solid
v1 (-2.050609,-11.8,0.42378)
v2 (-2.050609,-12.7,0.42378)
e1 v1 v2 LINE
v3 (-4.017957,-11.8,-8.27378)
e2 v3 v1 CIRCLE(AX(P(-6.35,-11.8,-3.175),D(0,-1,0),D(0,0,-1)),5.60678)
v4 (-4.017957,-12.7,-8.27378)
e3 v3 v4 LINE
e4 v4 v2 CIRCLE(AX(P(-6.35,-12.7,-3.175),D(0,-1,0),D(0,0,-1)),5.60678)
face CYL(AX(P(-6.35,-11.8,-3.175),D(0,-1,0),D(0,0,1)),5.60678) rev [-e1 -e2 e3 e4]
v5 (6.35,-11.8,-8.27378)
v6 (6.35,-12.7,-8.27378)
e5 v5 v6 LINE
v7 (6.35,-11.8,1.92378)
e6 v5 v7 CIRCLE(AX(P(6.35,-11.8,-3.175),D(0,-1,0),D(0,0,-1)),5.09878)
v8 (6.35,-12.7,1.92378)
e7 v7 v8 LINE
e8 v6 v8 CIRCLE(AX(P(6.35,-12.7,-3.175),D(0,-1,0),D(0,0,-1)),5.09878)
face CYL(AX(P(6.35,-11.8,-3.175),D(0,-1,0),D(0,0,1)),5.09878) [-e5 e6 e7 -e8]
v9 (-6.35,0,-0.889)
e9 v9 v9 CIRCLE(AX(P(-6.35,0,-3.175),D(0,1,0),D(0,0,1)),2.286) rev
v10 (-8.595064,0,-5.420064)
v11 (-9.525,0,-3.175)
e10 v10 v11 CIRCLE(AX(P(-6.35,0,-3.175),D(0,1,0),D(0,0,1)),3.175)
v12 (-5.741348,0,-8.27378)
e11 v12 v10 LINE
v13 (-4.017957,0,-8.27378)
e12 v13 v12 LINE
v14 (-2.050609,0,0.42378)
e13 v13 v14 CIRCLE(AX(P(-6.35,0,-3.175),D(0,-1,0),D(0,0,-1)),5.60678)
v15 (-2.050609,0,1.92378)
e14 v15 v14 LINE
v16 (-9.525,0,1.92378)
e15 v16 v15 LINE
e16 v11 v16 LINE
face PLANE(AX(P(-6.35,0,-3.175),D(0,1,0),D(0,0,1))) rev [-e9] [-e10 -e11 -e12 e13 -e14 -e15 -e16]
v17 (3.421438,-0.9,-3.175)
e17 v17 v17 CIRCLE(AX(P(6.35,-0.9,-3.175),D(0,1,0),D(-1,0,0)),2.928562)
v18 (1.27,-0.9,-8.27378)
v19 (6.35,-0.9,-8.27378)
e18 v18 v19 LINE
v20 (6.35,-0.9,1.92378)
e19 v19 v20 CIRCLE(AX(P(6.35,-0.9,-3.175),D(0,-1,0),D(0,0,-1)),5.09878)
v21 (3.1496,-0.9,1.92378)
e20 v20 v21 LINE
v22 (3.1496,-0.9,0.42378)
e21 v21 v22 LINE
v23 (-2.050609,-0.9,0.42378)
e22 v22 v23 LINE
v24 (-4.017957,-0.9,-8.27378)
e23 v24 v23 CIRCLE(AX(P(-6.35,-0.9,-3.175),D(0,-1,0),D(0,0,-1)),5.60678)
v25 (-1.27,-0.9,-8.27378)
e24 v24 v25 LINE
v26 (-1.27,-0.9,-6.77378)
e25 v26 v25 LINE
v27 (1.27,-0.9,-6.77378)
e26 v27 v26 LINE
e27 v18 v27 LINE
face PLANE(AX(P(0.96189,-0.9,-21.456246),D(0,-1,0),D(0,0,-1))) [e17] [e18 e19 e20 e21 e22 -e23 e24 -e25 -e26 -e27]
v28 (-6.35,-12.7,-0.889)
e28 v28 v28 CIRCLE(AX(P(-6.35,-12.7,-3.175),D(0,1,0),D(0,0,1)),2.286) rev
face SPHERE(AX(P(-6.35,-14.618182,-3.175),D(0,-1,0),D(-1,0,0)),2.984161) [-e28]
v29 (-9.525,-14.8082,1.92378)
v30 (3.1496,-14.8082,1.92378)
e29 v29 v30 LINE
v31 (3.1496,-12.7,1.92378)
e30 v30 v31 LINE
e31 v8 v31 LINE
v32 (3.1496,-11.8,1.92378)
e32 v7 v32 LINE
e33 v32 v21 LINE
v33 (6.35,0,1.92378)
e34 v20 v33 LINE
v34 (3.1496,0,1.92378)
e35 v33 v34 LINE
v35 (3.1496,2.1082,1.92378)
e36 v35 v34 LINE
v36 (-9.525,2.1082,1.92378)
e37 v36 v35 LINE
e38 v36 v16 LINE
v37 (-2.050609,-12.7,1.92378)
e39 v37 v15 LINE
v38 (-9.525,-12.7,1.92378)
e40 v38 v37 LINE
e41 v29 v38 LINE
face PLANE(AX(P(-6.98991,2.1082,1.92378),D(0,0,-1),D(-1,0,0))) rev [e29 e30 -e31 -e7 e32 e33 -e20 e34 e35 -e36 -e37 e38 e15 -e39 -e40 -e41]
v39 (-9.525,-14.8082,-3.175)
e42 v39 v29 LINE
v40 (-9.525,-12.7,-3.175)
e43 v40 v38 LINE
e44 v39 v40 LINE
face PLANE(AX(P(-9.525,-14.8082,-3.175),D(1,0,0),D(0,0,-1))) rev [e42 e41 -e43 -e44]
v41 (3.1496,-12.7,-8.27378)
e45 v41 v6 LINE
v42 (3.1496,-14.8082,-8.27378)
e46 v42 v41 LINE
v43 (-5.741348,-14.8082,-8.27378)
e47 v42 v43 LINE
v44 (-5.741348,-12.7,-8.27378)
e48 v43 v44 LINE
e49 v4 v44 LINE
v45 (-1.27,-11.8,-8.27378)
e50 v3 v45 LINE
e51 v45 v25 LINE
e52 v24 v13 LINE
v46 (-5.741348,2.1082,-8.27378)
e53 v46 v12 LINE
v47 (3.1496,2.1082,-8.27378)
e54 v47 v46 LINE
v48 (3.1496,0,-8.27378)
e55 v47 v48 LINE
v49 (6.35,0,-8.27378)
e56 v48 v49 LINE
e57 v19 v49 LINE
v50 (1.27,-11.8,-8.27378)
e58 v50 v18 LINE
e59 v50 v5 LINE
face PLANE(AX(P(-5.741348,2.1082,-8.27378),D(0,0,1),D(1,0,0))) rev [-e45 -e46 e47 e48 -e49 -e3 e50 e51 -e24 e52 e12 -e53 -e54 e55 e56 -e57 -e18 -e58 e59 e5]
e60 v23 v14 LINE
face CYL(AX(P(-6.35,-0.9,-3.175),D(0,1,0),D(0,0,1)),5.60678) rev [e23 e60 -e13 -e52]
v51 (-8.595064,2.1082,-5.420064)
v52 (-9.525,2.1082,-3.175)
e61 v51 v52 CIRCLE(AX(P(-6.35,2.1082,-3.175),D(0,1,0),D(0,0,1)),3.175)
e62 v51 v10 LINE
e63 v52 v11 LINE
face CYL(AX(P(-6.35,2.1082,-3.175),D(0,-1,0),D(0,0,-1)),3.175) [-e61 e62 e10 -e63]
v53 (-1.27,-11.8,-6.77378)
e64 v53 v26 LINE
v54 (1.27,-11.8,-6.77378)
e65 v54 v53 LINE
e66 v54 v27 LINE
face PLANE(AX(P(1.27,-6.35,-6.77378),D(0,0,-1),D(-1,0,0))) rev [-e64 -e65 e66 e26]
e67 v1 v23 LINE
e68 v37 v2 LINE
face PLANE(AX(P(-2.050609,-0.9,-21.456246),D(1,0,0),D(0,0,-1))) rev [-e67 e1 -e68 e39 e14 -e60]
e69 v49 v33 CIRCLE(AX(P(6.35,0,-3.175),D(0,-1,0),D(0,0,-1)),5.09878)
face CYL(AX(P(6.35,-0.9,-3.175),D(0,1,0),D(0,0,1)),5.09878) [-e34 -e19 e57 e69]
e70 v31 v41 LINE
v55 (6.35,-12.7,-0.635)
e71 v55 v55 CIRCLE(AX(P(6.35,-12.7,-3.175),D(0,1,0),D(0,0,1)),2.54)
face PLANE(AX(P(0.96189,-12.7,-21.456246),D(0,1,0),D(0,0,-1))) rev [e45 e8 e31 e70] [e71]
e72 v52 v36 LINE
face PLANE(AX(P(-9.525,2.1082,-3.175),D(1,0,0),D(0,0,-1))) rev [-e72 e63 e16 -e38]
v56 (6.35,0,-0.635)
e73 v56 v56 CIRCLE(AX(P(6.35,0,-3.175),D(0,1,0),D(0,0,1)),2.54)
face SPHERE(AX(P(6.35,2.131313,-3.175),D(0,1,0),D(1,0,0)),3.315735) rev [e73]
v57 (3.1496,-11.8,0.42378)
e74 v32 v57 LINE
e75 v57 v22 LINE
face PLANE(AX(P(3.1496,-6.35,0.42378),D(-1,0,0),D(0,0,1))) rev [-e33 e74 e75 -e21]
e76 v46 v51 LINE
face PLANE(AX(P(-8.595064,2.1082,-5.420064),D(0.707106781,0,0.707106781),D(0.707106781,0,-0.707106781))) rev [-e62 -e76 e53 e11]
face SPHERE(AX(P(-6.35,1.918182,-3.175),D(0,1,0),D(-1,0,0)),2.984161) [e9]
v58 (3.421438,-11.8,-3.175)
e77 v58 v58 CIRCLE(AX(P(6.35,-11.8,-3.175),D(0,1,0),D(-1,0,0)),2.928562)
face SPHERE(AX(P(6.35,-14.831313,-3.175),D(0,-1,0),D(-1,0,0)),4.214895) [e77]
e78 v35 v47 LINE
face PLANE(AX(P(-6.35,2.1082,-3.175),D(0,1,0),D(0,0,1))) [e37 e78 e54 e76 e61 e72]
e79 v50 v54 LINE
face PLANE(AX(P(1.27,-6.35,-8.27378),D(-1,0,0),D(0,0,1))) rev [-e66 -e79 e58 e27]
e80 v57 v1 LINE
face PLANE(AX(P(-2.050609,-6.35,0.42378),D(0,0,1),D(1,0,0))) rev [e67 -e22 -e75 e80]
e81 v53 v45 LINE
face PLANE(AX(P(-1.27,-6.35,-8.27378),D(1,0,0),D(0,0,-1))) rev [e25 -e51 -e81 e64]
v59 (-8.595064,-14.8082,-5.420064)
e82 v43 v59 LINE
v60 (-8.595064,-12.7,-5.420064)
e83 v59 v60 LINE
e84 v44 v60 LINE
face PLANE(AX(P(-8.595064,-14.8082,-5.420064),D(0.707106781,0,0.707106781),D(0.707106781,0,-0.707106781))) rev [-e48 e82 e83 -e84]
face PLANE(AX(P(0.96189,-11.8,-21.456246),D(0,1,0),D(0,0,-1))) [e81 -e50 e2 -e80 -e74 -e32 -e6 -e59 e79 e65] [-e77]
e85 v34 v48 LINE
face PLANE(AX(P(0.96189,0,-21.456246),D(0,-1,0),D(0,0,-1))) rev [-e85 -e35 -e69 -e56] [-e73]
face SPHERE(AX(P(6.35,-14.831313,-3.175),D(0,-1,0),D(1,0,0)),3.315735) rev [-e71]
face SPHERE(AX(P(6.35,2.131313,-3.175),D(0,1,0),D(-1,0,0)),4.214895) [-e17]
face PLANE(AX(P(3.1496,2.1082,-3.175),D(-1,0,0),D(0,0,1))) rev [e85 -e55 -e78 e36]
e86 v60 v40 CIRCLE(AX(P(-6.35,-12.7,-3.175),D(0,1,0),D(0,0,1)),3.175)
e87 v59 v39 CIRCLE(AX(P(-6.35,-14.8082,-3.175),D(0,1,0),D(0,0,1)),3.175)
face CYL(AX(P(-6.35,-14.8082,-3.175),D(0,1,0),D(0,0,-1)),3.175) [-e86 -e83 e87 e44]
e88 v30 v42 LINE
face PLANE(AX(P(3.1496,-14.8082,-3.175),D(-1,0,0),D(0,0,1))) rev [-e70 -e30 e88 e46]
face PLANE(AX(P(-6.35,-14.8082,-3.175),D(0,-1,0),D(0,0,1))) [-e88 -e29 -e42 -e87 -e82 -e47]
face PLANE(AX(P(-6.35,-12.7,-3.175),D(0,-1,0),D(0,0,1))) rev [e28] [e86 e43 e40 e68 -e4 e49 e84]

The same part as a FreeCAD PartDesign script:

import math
import FreeCAD as App
import Part
import Sketcher

V = App.Vector
Q = App.Units.Quantity

doc = App.newDocument("Part")
body = doc.addObject("PartDesign::Body", "Body")

sketch1 = doc.addObject("Sketcher::SketchObject", "Sketch")
body.addObject(sketch1)
sketch1.AttachmentSupport = (doc.XZ_Plane, [""])
sketch1.MapMode = "FlatFace"
sketch1.addGeometry([
    Part.LineSegment(V(3.1, -8.3, 0), V(-5.7, -8.3, 0)),
    Part.LineSegment(V(-5.7, -8.3, 0), V(-8.6, -5.4, 0)),
    Part.ArcOfCircle(Part.Circle(V(-6.4, -3.2, 0), V(0, 0, 1), 3.2), math.radians(180), math.radians(225)),
    Part.LineSegment(V(-9.5, -3.2, 0), V(-9.5, 1.9, 0)),
    Part.LineSegment(V(-9.5, 1.9, 0), V(3.1, 1.9, 0)),
    Part.LineSegment(V(3.1, 1.9, 0), V(3.1, -8.3, 0)),
], False)
sketch1.addConstraint([
    Sketcher.Constraint("Coincident", 0, 2, 1, 1),
    Sketcher.Constraint("Tangent", 1, 2, 2, 2),
    Sketcher.Constraint("Tangent", 2, 1, 3, 1),
    Sketcher.Constraint("Coincident", 3, 2, 4, 1),
    Sketcher.Constraint("Coincident", 4, 2, 5, 1),
    Sketcher.Constraint("Coincident", 5, 2, 0, 1),
    Sketcher.Constraint("Horizontal", 0),
    Sketcher.Constraint("Vertical", 3),
    Sketcher.Constraint("Horizontal", 4),
    Sketcher.Constraint("Vertical", 5),
    Sketcher.Constraint("Angle", 1, Q("135 deg")),
    Sketcher.Constraint("Radius", 2, Q("0.125 in")),
    Sketcher.Constraint("DistanceX", 4, 1, 4, 2, Q("0.499 in")),
    Sketcher.Constraint("DistanceX", 2, 3, -1, 1, Q("0.25 in")),
    Sketcher.Constraint("DistanceY", 2, 3, -1, 1, Q("0.125 in")),
    Sketcher.Constraint("DistanceX", 0, 2, 0, 1, 8.890948),
    Sketcher.Constraint("DistanceY", 3, 1, 3, 2, 5.09878),
])
pad1 = doc.addObject("PartDesign::Pad", "Pad")
body.addObject(pad1)
pad1.Profile = sketch1
pad1.Length = Q("0.083 in")
pad1.Reversed = True

sketch2 = doc.addObject("Sketcher::SketchObject", "Sketch001")
body.addObject(sketch2)
sketch2.AttachmentSupport = (doc.XZ_Plane, [""])
sketch2.MapMode = "FlatFace"
sketch2.addGeometry([
    Part.LineSegment(V(-2.1, 1.9, 0), V(-2.1, 0.4, 0)),
    Part.ArcOfCircle(Part.Circle(V(-6.3, -3.2, 0), V(0, 0, 1), 5.6), math.radians(-65), math.radians(40)),
    Part.LineSegment(V(-4, -8.3, 0), V(6.3, -8.3, 0)),
    Part.ArcOfCircle(Part.Circle(V(6.3, -3.2, 0), V(0, 0, 1), 5.1), math.radians(-90), math.radians(90)),
    Part.LineSegment(V(6.3, 1.9, 0), V(-2.1, 1.9, 0)),
], False)
sketch2.addConstraint([
    Sketcher.Constraint("Coincident", 0, 2, 1, 2),
    Sketcher.Constraint("Coincident", 1, 1, 2, 1),
    Sketcher.Constraint("Tangent", 2, 2, 3, 1),
    Sketcher.Constraint("Tangent", 3, 2, 4, 1),
    Sketcher.Constraint("Coincident", 4, 2, 0, 1),
    Sketcher.Constraint("Vertical", 0),
    Sketcher.Constraint("Horizontal", 2),
    Sketcher.Constraint("Horizontal", 4),
    Sketcher.Constraint("Symmetric", 1, 3, 3, 3, -2),
    Sketcher.Constraint("DistanceX", 1, 3, 3, 3, Q("0.5 in")),
    Sketcher.Constraint("DistanceY", 1, 3, -1, 1, Q("0.125 in")),
    Sketcher.Constraint("Radius", 1, 5.60678),
    Sketcher.Constraint("Radius", 3, 5.09878),
    Sketcher.Constraint("DistanceY", 0, 2, 0, 1, 1.5),
])
pad2 = doc.addObject("PartDesign::Pad", "Pad001")
body.addObject(pad2)
pad2.Profile = sketch2
pad2.Length = 0.9

sketch3 = doc.addObject("Sketcher::SketchObject", "Sketch002")
body.addObject(sketch3)
sketch3.AttachmentSupport = (doc.XY_Plane, [""])
sketch3.MapMode = "FlatFace"
sketch3.AttachmentOffset = App.Placement(V(0, 0, -0.125 * 25.4), App.Rotation())
sketch3.addGeometry([
    Part.LineSegment(V(-6.3, 0, 0), V(-6.3, -1.1, 0)),
    Part.ArcOfCircle(Part.Circle(V(-6.4, 1.9, 0), V(0, 0, 1), 3), math.radians(-90), math.radians(-40)),
    Part.LineSegment(V(-4.1, 0, 0), V(-6.3, 0, 0)),
], False)
sketch3.addGeometry(Part.LineSegment(V(-6.3, 1.9, 0), V(-6.3, -1.1, 0)), True)
sketch3.addConstraint([
    Sketcher.Constraint("Coincident", 0, 2, 1, 1),
    Sketcher.Constraint("Coincident", 1, 2, 2, 1),
    Sketcher.Constraint("Coincident", 2, 2, 0, 1),
    Sketcher.Constraint("Vertical", 0),
    Sketcher.Constraint("Horizontal", 2),
    Sketcher.Constraint("Vertical", 3),
    Sketcher.Constraint("Coincident", 3, 1, 1, 3),
    Sketcher.Constraint("Coincident", 3, 2, 0, 2),
    Sketcher.Constraint("PointOnObject", 1, 2, -1),
    Sketcher.Constraint("DistanceX", 2, 2, 2, 1, Q("0.09 in")),
    Sketcher.Constraint("DistanceX", 1, 3, -1, 1, Q("0.25 in")),
    Sketcher.Constraint("Radius", 1, 2.984161),
])
revolution = doc.addObject("PartDesign::Revolution", "Revolution")
body.addObject(revolution)
revolution.Profile = sketch3
revolution.ReferenceAxis = (sketch3, ["Axis0"])
revolution.Angle = 360

sketch4 = doc.addObject("Sketcher::SketchObject", "Sketch003")
body.addObject(sketch4)
sketch4.AttachmentSupport = (doc.XY_Plane, [""])
sketch4.MapMode = "FlatFace"
sketch4.AttachmentOffset = App.Placement(V(0, 0, -0.125 * 25.4), App.Rotation())
sketch4.addGeometry([
    Part.LineSegment(V(6.3, -0.9, 0), V(6.3, -2.1, 0)),
    Part.ArcOfCircle(Part.Circle(V(6.3, 2.1, 0), V(0, 0, 1), 4.2), math.radians(-90), math.radians(-46)),
    Part.LineSegment(V(9.3, -0.9, 0), V(6.3, -0.9, 0)),
], False)
sketch4.addGeometry(Part.LineSegment(V(6.3, 2.1, 0), V(6.3, -2.1, 0)), True)
sketch4.addConstraint([
    Sketcher.Constraint("Coincident", 0, 2, 1, 1),
    Sketcher.Constraint("Coincident", 1, 2, 2, 1),
    Sketcher.Constraint("Coincident", 2, 2, 0, 1),
    Sketcher.Constraint("Vertical", 0),
    Sketcher.Constraint("Horizontal", 2),
    Sketcher.Constraint("Vertical", 3),
    Sketcher.Constraint("Coincident", 3, 1, 1, 3),
    Sketcher.Constraint("Coincident", 3, 2, 0, 2),
    Sketcher.Constraint("DistanceX", -1, 1, 1, 3, Q("0.25 in")),
    Sketcher.Constraint("Radius", 1, 4.214895),
    Sketcher.Constraint("DistanceY", 0, 2, 0, 1, 1.183581),
    Sketcher.Constraint("DistanceY", 1, 2, -1, 1, 0.9),
])
revolution2 = doc.addObject("PartDesign::Revolution", "Revolution001")
body.addObject(revolution2)
revolution2.Profile = sketch4
revolution2.ReferenceAxis = (sketch4, ["Axis0"])
revolution2.Angle = 360

sketch5 = doc.addObject("Sketcher::SketchObject", "Sketch004")
body.addObject(sketch5)
sketch5.AttachmentSupport = (doc.XY_Plane, [""])
sketch5.MapMode = "FlatFace"
sketch5.AttachmentOffset = App.Placement(V(0, 0, -0.125 * 25.4), App.Rotation())
sketch5.addGeometry([
    Part.LineSegment(V(8.9, 0, 0), V(6.3, 0, 0)),
    Part.LineSegment(V(6.3, 0, 0), V(6.3, -1.2, 0)),
    Part.ArcOfCircle(Part.Circle(V(6.3, 2.1, 0), V(0, 0, 1), 3.3), math.radians(-90), math.radians(-40)),
], False)
sketch5.addGeometry(Part.LineSegment(V(6.3, 2.1, 0), V(6.3, -1.2, 0)), True)
sketch5.addConstraint([
    Sketcher.Constraint("Coincident", 0, 2, 1, 1),
    Sketcher.Constraint("Coincident", 1, 2, 2, 1),
    Sketcher.Constraint("Coincident", 2, 2, 0, 1),
    Sketcher.Constraint("Horizontal", 0),
    Sketcher.Constraint("Vertical", 1),
    Sketcher.Constraint("Vertical", 3),
    Sketcher.Constraint("Coincident", 3, 1, 2, 3),
    Sketcher.Constraint("Coincident", 3, 2, 1, 2),
    Sketcher.Constraint("PointOnObject", 0, 2, -1),
    Sketcher.Constraint("DistanceX", 0, 2, 0, 1, Q("0.1 in")),
    Sketcher.Constraint("DistanceX", -1, 1, 2, 3, Q("0.25 in")),
    Sketcher.Constraint("Radius", 2, 3.315735),
])
groove = doc.addObject("PartDesign::Groove", "Groove")
body.addObject(groove)
groove.Profile = sketch5
groove.ReferenceAxis = (sketch5, ["Axis0"])
groove.Angle = 360

sketch6 = doc.addObject("Sketcher::SketchObject", "Sketch005")
body.addObject(sketch6)
sketch6.AttachmentSupport = (doc.XZ_Plane, [""])
sketch6.MapMode = "FlatFace"
sketch6.addGeometry([
    Part.LineSegment(V(-2.1, 1.9, 0), V(-2.1, 0.4, 0)),
    Part.LineSegment(V(-2.1, 0.4, 0), V(3.1, 0.4, 0)),
    Part.LineSegment(V(3.1, 0.4, 0), V(3.1, 1.9, 0)),
    Part.LineSegment(V(3.1, 1.9, 0), V(-2.1, 1.9, 0)),
], False)
sketch6.addConstraint([
    Sketcher.Constraint("Coincident", 0, 2, 1, 1),
    Sketcher.Constraint("Coincident", 1, 2, 2, 1),
    Sketcher.Constraint("Coincident", 2, 2, 3, 1),
    Sketcher.Constraint("Coincident", 3, 2, 0, 1),
    Sketcher.Constraint("Vertical", 0),
    Sketcher.Constraint("Horizontal", 1),
    Sketcher.Constraint("Vertical", 2),
    Sketcher.Constraint("Horizontal", 3),
    Sketcher.Constraint("DistanceX", -1, 1, 1, 2, Q("0.124 in")),
    Sketcher.Constraint("DistanceY", 0, 2, 0, 1, 1.5),
    Sketcher.Constraint("DistanceX", 1, 1, 1, 2, 5.200209),
    Sketcher.Constraint("DistanceY", -1, 1, 0, 2, 0.42378),
])
pad3 = doc.addObject("PartDesign::Pad", "Pad002")
body.addObject(pad3)
pad3.Profile = sketch6
pad3.Length = Q("0.25 in")

sketch7 = doc.addObject("Sketcher::SketchObject", "Sketch006")
body.addObject(sketch7)
sketch7.AttachmentSupport = (doc.XZ_Plane, [""])
sketch7.MapMode = "FlatFace"
sketch7.AttachmentOffset = App.Placement(V(0, 0, 0.9), App.Rotation())
sketch7.addGeometry([
    Part.LineSegment(V(-1.3, -6.8, 0), V(-1.3, -8.3, 0)),
    Part.LineSegment(V(-1.3, -8.3, 0), V(1.3, -8.3, 0)),
    Part.LineSegment(V(1.3, -8.3, 0), V(1.3, -6.8, 0)),
    Part.LineSegment(V(1.3, -6.8, 0), V(-1.3, -6.8, 0)),
], False)
sketch7.addConstraint([
    Sketcher.Constraint("Coincident", 0, 2, 1, 1),
    Sketcher.Constraint("Coincident", 1, 2, 2, 1),
    Sketcher.Constraint("Coincident", 2, 2, 3, 1),
    Sketcher.Constraint("Coincident", 3, 2, 0, 1),
    Sketcher.Constraint("Vertical", 0),
    Sketcher.Constraint("Horizontal", 1),
    Sketcher.Constraint("Vertical", 2),
    Sketcher.Constraint("Horizontal", 3),
    Sketcher.Constraint("DistanceX", 1, 1, 1, 2, Q("0.1 in")),
    Sketcher.Constraint("DistanceX", 0, 2, -1, 1, Q("0.05 in")),
    Sketcher.Constraint("DistanceY", 0, 2, 0, 1, 1.5),
    Sketcher.Constraint("DistanceY", 0, 2, -1, 1, 8.27378),
])
pad4 = doc.addObject("PartDesign::Pad", "Pad003")
body.addObject(pad4)
pad4.Profile = sketch7
pad4.Length = 5.45
body2 = doc.addObject("PartDesign::Body", "Body001")
doc.recompute()

body2.BaseFeature = body
doc.recompute()

mirroring = doc.addObject("Part::Mirroring", "Mirroring")
mirroring.Source = body
mirroring.Base = V(3.1496, -6.35, 1.92378)
mirroring.Normal = V(0, 1, 0)
body3 = doc.addObject("PartDesign::Body", "Body002")
body3.BaseFeature = mirroring
boolean = doc.addObject("PartDesign::Boolean", "Boolean")
body2.addObject(boolean)
boolean.Type = "Fuse"
boolean.addObjects([body3])
doc.recompute()
mirroring.Visibility = False

doc.recompute()
